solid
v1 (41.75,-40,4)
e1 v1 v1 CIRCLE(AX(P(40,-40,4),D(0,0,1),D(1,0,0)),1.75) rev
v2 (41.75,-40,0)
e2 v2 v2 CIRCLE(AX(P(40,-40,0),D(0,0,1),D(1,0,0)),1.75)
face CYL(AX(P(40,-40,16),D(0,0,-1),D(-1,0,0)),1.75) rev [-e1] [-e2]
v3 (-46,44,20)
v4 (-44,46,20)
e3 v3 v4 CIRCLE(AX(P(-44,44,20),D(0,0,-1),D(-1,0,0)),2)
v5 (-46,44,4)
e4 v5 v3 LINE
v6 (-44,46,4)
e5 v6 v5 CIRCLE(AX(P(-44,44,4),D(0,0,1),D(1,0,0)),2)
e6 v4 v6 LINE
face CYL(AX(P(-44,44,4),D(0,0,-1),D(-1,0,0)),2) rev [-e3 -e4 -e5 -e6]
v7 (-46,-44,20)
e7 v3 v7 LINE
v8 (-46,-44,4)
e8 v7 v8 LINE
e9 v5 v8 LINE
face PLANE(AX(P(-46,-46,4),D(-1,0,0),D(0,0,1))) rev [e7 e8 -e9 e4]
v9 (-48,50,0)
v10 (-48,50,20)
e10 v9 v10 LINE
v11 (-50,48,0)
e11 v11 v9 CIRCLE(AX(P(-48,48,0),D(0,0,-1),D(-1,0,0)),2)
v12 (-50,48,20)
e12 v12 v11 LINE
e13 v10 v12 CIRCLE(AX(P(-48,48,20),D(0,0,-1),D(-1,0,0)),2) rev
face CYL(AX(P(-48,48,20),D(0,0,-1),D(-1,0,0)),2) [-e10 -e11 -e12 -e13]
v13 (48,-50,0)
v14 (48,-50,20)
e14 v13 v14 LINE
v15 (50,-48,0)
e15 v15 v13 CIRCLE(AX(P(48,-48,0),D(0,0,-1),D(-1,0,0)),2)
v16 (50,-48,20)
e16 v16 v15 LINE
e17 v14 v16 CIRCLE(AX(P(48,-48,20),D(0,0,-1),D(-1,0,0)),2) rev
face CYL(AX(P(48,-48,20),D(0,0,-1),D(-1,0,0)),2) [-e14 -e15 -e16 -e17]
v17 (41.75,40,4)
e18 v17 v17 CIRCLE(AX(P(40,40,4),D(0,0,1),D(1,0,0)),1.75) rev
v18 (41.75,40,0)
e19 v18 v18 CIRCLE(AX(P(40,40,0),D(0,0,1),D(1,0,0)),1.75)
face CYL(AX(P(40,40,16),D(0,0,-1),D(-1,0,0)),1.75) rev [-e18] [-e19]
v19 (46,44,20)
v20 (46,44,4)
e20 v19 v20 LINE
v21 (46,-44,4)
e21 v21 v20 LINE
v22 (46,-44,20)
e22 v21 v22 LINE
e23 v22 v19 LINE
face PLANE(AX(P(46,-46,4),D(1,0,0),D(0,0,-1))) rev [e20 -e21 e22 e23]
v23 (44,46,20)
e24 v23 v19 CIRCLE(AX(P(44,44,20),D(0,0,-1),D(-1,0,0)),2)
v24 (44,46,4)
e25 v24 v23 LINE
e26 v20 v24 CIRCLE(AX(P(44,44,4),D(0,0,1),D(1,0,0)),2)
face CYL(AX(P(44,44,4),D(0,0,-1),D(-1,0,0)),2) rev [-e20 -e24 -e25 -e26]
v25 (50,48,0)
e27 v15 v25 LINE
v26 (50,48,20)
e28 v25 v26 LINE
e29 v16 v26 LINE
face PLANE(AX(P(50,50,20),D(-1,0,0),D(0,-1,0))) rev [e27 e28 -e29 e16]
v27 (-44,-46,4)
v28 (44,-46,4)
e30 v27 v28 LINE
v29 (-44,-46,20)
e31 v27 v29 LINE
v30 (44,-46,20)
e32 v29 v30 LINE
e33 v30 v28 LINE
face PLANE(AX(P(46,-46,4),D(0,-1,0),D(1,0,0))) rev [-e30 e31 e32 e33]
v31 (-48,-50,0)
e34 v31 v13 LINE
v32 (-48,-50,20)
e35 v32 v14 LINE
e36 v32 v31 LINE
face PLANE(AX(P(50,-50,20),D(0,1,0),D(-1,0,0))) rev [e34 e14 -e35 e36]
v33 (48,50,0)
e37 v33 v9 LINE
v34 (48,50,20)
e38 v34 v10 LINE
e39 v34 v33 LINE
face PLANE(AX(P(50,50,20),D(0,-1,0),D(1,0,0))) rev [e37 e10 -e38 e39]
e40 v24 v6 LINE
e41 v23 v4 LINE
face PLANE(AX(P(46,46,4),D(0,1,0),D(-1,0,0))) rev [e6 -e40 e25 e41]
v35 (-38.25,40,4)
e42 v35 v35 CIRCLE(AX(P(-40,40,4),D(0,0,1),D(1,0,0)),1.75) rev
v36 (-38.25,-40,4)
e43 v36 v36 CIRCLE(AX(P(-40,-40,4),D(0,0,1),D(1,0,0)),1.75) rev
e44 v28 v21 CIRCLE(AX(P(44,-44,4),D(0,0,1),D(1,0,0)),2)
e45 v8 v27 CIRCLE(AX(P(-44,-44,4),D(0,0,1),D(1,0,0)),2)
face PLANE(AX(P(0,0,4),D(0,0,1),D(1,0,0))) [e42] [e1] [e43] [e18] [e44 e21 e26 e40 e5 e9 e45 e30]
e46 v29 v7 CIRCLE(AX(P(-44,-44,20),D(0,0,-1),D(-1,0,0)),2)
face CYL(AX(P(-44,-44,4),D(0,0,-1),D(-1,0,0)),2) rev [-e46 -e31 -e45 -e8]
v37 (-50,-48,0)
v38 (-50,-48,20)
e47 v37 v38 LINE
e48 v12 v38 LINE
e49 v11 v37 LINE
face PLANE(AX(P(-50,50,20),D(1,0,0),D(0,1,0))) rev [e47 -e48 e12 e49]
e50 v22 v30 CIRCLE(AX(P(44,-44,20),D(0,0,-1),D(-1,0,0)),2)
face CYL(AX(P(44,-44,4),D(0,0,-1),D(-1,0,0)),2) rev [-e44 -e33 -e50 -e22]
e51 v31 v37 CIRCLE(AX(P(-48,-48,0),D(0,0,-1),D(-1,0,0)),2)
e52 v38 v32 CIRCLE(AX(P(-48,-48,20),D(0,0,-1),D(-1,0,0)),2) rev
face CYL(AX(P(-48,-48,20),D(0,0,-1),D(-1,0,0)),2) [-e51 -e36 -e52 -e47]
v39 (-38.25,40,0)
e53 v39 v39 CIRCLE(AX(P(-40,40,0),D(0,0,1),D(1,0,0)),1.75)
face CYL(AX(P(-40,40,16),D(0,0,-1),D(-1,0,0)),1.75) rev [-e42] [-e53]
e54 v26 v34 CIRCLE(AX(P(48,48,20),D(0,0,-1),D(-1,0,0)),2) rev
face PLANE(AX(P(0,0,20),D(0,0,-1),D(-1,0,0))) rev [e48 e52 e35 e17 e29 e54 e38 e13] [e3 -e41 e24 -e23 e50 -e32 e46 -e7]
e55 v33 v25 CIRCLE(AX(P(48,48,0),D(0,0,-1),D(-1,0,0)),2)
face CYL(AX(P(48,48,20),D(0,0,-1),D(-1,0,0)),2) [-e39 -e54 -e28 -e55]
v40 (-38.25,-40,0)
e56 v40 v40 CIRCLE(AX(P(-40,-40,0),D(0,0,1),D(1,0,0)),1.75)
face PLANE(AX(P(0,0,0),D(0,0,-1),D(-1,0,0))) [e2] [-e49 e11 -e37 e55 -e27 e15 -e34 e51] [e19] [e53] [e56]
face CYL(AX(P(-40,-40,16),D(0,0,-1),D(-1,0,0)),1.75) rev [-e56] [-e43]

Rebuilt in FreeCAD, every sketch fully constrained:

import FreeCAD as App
import Part
import Sketcher

V = App.Vector


def edges_at(feature, points):
    """Names of the edges that pass closest to the given points."""
    edges = feature.Shape.Edges
    near = lambda p: min(range(len(edges)), key=lambda i: edges[i].distToShape(Part.Vertex(*p))[0])
    return sorted({f"Edge{near(p) + 1}" for p in points})


def add_polygon(sketch, points):
    """Adds a closed chain of lines whose ends are joined by coincident constraints."""
    first, n = sketch.GeometryCount, len(points)
    for a, b in zip(points, points[1:] + points[:1]):
        sketch.addGeometry(Part.LineSegment(App.Vector(*a, 0), App.Vector(*b, 0)), False)
    for i in range(n):
        sketch.addConstraint(Sketcher.Constraint("Coincident", first + i, 2, first + (i + 1) % n, 1))

doc = App.newDocument("Part")
body = doc.addObject("PartDesign::Body", "Body")

# Sketch on XY plane
sketch1 = doc.addObject("Sketcher::SketchObject", "Sketch")
body.addObject(sketch1)
sketch1.AttachmentSupport = (doc.XY_Plane, [""])
sketch1.MapMode = "FlatFace"
add_polygon(sketch1, [(-50, 50), (-50, -50), (50, -50), (50, 50)])  # lines 0-3
sketch1.addConstraint([
    Sketcher.Constraint("Vertical", 0),
    Sketcher.Constraint("Horizontal", 1),
    Sketcher.Constraint("Vertical", 2),
    Sketcher.Constraint("Horizontal", 3),
    Sketcher.Constraint("Symmetric", 0, 2, 2, 2, -1, 1),
    Sketcher.Constraint("Equal", 3, 0),
    Sketcher.Constraint("DistanceX", 1, 1, 1, 2, 100.0),
])
pad1 = doc.addObject("PartDesign::Pad", "Pad")
body.addObject(pad1)
pad1.Profile = sketch1
pad1.Length = 20

# Sketch on XY plane
sketch2 = doc.addObject("Sketcher::SketchObject", "Sketch001")
body.addObject(sketch2)
sketch2.AttachmentSupport = (doc.XY_Plane, [""])
sketch2.MapMode = "FlatFace"
sketch2.AttachmentOffset = App.Placement(V(0, 0, 20), App.Rotation())
add_polygon(sketch2, [(-46, 46), (-46, -46), (46, -46), (46, 46)])  # lines 0-3
sketch2.addConstraint([
    Sketcher.Constraint("Vertical", 0),
    Sketcher.Constraint("Horizontal", 1),
    Sketcher.Constraint("Vertical", 2),
    Sketcher.Constraint("Horizontal", 3),
    Sketcher.Constraint("Symmetric", 0, 2, 2, 2, -1, 1),
    Sketcher.Constraint("Equal", 3, 0),
    Sketcher.Constraint("DistanceX", 1, 1, 1, 2, 92.0),
])
pocket1 = doc.addObject("PartDesign::Pocket", "Pocket")
body.addObject(pocket1)
pocket1.Profile = sketch2
pocket1.Length = 16
doc.recompute()

fillet = doc.addObject("PartDesign::Fillet", "Fillet")
body.addObject(fillet)
fillet.Base = (pocket1, edges_at(pocket1, [
    (-46, -46, 12),
    (-46, 46, 12),
    (46, 46, 12),
    (46, -46, 12),
    (-50, 50, 10),
    (50, 50, 10),
    (50, -50, 10),
    (-50, -50, 10),
]))
fillet.Radius = 2

# Sketch on XY plane
sketch3 = doc.addObject("Sketcher::SketchObject", "Sketch002")
body.addObject(sketch3)
sketch3.AttachmentSupport = (doc.XY_Plane, [""])
sketch3.MapMode = "FlatFace"
sketch3.addGeometry([
    Part.Circle(V(-40, 40, 0), V(0, 0, 1), 1.75),
    Part.Circle(V(40, 40, 0), V(0, 0, 1), 1.75),
    Part.Circle(V(40, -40, 0), V(0, 0, 1), 1.75),
    Part.Circle(V(-40, -40, 0), V(0, 0, 1), 1.75),
], False)
sketch3.addConstraint([
    Sketcher.Constraint("Equal", 0, 1),
    Sketcher.Constraint("Equal", 1, 2),
    Sketcher.Constraint("Equal", 2, 3),
    Sketcher.Constraint("Symmetric", 0, 3, 2, 3, -1, 1),
    Sketcher.Constraint("Symmetric", 1, 3, 3, 3, -1, 1),
    Sketcher.Constraint("Symmetric", 0, 3, 1, 3, -2),
    Sketcher.Constraint("Diameter", 0, 3.5),
    Sketcher.Constraint("DistanceX", 0, 3, -1, 1, 40.0),
    Sketcher.Constraint("DistanceY", -1, 1, 0, 3, 40.0),
])
pocket2 = doc.addObject("PartDesign::Pocket", "Pocket001")
body.addObject(pocket2)
pocket2.Profile = sketch3
pocket2.Length = 16
pocket2.Reversed = True

doc.recompute()
